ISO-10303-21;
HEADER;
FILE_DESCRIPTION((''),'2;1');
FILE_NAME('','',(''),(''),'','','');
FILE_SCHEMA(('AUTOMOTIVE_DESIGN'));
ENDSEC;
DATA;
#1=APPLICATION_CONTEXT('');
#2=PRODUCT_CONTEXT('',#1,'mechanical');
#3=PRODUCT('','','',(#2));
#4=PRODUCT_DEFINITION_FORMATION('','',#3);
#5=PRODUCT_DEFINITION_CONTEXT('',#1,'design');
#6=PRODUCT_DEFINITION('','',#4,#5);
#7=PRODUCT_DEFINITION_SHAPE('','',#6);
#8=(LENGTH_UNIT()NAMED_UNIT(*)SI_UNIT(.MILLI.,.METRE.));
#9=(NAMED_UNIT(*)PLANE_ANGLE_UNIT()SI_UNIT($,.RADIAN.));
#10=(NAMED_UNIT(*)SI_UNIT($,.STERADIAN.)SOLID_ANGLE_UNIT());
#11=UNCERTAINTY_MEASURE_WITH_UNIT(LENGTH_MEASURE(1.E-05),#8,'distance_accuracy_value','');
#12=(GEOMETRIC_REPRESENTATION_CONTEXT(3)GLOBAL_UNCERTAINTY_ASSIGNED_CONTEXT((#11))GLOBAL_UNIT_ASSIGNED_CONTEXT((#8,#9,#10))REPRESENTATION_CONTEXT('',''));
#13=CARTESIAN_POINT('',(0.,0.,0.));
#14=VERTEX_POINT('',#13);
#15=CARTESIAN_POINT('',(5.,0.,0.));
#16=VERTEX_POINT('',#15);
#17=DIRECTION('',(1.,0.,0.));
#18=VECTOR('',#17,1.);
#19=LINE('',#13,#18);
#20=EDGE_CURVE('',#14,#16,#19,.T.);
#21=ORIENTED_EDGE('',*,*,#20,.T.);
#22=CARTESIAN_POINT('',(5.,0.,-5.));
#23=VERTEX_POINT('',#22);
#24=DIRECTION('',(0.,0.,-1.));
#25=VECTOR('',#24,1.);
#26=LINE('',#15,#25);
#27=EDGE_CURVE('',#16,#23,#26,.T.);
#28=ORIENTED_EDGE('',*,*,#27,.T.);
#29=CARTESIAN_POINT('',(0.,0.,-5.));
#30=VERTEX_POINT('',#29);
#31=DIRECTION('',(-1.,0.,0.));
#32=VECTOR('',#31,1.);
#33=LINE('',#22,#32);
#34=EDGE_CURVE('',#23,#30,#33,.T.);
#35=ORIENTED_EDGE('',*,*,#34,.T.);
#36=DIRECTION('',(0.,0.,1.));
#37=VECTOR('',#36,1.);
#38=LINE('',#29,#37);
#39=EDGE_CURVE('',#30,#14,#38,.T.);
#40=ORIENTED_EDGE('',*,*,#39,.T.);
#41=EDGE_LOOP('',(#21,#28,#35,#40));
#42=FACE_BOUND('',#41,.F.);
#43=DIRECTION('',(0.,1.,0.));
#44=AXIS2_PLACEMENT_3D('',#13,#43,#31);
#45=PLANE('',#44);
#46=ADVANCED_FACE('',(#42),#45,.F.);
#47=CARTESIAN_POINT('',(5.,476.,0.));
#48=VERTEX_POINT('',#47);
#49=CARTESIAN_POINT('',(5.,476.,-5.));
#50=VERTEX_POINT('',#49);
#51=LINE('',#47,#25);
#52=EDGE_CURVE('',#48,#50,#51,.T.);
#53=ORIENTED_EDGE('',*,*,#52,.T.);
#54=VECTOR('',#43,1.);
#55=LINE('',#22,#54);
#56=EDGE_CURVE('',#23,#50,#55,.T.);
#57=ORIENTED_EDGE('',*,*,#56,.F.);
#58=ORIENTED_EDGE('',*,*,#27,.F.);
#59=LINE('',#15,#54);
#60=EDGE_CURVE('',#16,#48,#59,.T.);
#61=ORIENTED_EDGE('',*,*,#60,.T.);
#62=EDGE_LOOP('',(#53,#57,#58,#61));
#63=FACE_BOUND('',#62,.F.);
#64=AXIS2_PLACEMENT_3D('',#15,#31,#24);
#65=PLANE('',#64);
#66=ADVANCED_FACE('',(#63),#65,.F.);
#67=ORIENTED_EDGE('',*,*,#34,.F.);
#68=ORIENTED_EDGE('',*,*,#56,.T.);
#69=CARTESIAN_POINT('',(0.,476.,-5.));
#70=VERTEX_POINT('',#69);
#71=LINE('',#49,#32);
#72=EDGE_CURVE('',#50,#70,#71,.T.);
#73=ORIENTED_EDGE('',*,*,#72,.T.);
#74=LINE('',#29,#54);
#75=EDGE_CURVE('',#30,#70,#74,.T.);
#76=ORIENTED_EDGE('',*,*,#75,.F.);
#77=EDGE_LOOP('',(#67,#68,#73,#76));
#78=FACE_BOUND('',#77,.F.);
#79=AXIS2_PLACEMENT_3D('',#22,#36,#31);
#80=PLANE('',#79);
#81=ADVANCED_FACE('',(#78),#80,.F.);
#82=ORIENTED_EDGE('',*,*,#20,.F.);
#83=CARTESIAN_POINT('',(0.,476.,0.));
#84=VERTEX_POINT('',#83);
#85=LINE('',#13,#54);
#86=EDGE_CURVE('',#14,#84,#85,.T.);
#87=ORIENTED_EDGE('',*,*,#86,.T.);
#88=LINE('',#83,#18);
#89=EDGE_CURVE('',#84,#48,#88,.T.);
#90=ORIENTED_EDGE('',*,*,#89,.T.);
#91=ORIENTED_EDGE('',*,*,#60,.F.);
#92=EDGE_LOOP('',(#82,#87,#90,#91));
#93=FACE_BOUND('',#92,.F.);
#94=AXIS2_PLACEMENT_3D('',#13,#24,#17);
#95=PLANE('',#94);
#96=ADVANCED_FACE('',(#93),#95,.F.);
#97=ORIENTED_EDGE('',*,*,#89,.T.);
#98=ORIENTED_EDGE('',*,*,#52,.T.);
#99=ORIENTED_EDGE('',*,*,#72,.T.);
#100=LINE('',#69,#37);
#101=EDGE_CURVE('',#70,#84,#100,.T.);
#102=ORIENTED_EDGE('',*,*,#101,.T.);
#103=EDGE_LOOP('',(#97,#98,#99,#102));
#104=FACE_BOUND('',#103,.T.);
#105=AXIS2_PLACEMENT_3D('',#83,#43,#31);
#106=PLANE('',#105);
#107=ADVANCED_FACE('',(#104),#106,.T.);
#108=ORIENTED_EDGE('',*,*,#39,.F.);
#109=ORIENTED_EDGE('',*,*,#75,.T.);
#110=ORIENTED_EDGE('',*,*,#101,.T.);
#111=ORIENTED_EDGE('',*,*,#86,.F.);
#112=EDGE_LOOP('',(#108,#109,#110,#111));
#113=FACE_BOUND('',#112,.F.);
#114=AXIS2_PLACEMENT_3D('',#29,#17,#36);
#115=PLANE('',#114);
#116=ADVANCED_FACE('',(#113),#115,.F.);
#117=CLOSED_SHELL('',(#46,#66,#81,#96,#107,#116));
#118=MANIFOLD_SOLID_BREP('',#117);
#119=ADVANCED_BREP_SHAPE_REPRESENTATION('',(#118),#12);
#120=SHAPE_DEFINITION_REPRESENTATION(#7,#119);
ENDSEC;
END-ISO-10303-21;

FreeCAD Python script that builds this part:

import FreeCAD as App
import Part
import Sketcher
from FreeCAD import Vector


def add_polygon(sketch, points):
    """Adds a closed chain of lines whose ends are joined by coincident constraints."""
    first, n = sketch.GeometryCount, len(points)
    for a, b in zip(points, points[1:] + points[:1]):
        sketch.addGeometry(Part.LineSegment(App.Vector(*a, 0), App.Vector(*b, 0)), False)
    for i in range(n):
        sketch.addConstraint(Sketcher.Constraint("Coincident", first + i, 2, first + (i + 1) % n, 1))

doc = App.newDocument("Part")
body = doc.addObject("PartDesign::Body", "Body")

# Sketch on XZ plane
sketch1 = body.newObject("Sketcher::SketchObject", "Sketch")
sketch1.AttachmentSupport = (doc.getObject("XZ_Plane"), [""])
sketch1.MapMode = "FlatFace"
add_polygon(sketch1, [(0, -5), (0, 0), (5, 0), (5, -5)])  # lines 0-3
sketch1.addConstraint(Sketcher.Constraint("Vertical", 0))
sketch1.addConstraint(Sketcher.Constraint("Horizontal", 1))
sketch1.addConstraint(Sketcher.Constraint("Vertical", 2))
sketch1.addConstraint(Sketcher.Constraint("Horizontal", 3))
sketch1.addConstraint(Sketcher.Constraint("Coincident", 0, 2, -1, 1))
sketch1.addConstraint(Sketcher.Constraint("Equal", 3, 0))
sketch1.addConstraint(Sketcher.Constraint("DistanceX", 1, 1, 1, 2, 5.0))
pad1 = body.newObject("PartDesign::Pad", "Pad")
pad1.Profile = sketch1
pad1.Length = 476
pad1.Reversed = True

doc.recompute()
